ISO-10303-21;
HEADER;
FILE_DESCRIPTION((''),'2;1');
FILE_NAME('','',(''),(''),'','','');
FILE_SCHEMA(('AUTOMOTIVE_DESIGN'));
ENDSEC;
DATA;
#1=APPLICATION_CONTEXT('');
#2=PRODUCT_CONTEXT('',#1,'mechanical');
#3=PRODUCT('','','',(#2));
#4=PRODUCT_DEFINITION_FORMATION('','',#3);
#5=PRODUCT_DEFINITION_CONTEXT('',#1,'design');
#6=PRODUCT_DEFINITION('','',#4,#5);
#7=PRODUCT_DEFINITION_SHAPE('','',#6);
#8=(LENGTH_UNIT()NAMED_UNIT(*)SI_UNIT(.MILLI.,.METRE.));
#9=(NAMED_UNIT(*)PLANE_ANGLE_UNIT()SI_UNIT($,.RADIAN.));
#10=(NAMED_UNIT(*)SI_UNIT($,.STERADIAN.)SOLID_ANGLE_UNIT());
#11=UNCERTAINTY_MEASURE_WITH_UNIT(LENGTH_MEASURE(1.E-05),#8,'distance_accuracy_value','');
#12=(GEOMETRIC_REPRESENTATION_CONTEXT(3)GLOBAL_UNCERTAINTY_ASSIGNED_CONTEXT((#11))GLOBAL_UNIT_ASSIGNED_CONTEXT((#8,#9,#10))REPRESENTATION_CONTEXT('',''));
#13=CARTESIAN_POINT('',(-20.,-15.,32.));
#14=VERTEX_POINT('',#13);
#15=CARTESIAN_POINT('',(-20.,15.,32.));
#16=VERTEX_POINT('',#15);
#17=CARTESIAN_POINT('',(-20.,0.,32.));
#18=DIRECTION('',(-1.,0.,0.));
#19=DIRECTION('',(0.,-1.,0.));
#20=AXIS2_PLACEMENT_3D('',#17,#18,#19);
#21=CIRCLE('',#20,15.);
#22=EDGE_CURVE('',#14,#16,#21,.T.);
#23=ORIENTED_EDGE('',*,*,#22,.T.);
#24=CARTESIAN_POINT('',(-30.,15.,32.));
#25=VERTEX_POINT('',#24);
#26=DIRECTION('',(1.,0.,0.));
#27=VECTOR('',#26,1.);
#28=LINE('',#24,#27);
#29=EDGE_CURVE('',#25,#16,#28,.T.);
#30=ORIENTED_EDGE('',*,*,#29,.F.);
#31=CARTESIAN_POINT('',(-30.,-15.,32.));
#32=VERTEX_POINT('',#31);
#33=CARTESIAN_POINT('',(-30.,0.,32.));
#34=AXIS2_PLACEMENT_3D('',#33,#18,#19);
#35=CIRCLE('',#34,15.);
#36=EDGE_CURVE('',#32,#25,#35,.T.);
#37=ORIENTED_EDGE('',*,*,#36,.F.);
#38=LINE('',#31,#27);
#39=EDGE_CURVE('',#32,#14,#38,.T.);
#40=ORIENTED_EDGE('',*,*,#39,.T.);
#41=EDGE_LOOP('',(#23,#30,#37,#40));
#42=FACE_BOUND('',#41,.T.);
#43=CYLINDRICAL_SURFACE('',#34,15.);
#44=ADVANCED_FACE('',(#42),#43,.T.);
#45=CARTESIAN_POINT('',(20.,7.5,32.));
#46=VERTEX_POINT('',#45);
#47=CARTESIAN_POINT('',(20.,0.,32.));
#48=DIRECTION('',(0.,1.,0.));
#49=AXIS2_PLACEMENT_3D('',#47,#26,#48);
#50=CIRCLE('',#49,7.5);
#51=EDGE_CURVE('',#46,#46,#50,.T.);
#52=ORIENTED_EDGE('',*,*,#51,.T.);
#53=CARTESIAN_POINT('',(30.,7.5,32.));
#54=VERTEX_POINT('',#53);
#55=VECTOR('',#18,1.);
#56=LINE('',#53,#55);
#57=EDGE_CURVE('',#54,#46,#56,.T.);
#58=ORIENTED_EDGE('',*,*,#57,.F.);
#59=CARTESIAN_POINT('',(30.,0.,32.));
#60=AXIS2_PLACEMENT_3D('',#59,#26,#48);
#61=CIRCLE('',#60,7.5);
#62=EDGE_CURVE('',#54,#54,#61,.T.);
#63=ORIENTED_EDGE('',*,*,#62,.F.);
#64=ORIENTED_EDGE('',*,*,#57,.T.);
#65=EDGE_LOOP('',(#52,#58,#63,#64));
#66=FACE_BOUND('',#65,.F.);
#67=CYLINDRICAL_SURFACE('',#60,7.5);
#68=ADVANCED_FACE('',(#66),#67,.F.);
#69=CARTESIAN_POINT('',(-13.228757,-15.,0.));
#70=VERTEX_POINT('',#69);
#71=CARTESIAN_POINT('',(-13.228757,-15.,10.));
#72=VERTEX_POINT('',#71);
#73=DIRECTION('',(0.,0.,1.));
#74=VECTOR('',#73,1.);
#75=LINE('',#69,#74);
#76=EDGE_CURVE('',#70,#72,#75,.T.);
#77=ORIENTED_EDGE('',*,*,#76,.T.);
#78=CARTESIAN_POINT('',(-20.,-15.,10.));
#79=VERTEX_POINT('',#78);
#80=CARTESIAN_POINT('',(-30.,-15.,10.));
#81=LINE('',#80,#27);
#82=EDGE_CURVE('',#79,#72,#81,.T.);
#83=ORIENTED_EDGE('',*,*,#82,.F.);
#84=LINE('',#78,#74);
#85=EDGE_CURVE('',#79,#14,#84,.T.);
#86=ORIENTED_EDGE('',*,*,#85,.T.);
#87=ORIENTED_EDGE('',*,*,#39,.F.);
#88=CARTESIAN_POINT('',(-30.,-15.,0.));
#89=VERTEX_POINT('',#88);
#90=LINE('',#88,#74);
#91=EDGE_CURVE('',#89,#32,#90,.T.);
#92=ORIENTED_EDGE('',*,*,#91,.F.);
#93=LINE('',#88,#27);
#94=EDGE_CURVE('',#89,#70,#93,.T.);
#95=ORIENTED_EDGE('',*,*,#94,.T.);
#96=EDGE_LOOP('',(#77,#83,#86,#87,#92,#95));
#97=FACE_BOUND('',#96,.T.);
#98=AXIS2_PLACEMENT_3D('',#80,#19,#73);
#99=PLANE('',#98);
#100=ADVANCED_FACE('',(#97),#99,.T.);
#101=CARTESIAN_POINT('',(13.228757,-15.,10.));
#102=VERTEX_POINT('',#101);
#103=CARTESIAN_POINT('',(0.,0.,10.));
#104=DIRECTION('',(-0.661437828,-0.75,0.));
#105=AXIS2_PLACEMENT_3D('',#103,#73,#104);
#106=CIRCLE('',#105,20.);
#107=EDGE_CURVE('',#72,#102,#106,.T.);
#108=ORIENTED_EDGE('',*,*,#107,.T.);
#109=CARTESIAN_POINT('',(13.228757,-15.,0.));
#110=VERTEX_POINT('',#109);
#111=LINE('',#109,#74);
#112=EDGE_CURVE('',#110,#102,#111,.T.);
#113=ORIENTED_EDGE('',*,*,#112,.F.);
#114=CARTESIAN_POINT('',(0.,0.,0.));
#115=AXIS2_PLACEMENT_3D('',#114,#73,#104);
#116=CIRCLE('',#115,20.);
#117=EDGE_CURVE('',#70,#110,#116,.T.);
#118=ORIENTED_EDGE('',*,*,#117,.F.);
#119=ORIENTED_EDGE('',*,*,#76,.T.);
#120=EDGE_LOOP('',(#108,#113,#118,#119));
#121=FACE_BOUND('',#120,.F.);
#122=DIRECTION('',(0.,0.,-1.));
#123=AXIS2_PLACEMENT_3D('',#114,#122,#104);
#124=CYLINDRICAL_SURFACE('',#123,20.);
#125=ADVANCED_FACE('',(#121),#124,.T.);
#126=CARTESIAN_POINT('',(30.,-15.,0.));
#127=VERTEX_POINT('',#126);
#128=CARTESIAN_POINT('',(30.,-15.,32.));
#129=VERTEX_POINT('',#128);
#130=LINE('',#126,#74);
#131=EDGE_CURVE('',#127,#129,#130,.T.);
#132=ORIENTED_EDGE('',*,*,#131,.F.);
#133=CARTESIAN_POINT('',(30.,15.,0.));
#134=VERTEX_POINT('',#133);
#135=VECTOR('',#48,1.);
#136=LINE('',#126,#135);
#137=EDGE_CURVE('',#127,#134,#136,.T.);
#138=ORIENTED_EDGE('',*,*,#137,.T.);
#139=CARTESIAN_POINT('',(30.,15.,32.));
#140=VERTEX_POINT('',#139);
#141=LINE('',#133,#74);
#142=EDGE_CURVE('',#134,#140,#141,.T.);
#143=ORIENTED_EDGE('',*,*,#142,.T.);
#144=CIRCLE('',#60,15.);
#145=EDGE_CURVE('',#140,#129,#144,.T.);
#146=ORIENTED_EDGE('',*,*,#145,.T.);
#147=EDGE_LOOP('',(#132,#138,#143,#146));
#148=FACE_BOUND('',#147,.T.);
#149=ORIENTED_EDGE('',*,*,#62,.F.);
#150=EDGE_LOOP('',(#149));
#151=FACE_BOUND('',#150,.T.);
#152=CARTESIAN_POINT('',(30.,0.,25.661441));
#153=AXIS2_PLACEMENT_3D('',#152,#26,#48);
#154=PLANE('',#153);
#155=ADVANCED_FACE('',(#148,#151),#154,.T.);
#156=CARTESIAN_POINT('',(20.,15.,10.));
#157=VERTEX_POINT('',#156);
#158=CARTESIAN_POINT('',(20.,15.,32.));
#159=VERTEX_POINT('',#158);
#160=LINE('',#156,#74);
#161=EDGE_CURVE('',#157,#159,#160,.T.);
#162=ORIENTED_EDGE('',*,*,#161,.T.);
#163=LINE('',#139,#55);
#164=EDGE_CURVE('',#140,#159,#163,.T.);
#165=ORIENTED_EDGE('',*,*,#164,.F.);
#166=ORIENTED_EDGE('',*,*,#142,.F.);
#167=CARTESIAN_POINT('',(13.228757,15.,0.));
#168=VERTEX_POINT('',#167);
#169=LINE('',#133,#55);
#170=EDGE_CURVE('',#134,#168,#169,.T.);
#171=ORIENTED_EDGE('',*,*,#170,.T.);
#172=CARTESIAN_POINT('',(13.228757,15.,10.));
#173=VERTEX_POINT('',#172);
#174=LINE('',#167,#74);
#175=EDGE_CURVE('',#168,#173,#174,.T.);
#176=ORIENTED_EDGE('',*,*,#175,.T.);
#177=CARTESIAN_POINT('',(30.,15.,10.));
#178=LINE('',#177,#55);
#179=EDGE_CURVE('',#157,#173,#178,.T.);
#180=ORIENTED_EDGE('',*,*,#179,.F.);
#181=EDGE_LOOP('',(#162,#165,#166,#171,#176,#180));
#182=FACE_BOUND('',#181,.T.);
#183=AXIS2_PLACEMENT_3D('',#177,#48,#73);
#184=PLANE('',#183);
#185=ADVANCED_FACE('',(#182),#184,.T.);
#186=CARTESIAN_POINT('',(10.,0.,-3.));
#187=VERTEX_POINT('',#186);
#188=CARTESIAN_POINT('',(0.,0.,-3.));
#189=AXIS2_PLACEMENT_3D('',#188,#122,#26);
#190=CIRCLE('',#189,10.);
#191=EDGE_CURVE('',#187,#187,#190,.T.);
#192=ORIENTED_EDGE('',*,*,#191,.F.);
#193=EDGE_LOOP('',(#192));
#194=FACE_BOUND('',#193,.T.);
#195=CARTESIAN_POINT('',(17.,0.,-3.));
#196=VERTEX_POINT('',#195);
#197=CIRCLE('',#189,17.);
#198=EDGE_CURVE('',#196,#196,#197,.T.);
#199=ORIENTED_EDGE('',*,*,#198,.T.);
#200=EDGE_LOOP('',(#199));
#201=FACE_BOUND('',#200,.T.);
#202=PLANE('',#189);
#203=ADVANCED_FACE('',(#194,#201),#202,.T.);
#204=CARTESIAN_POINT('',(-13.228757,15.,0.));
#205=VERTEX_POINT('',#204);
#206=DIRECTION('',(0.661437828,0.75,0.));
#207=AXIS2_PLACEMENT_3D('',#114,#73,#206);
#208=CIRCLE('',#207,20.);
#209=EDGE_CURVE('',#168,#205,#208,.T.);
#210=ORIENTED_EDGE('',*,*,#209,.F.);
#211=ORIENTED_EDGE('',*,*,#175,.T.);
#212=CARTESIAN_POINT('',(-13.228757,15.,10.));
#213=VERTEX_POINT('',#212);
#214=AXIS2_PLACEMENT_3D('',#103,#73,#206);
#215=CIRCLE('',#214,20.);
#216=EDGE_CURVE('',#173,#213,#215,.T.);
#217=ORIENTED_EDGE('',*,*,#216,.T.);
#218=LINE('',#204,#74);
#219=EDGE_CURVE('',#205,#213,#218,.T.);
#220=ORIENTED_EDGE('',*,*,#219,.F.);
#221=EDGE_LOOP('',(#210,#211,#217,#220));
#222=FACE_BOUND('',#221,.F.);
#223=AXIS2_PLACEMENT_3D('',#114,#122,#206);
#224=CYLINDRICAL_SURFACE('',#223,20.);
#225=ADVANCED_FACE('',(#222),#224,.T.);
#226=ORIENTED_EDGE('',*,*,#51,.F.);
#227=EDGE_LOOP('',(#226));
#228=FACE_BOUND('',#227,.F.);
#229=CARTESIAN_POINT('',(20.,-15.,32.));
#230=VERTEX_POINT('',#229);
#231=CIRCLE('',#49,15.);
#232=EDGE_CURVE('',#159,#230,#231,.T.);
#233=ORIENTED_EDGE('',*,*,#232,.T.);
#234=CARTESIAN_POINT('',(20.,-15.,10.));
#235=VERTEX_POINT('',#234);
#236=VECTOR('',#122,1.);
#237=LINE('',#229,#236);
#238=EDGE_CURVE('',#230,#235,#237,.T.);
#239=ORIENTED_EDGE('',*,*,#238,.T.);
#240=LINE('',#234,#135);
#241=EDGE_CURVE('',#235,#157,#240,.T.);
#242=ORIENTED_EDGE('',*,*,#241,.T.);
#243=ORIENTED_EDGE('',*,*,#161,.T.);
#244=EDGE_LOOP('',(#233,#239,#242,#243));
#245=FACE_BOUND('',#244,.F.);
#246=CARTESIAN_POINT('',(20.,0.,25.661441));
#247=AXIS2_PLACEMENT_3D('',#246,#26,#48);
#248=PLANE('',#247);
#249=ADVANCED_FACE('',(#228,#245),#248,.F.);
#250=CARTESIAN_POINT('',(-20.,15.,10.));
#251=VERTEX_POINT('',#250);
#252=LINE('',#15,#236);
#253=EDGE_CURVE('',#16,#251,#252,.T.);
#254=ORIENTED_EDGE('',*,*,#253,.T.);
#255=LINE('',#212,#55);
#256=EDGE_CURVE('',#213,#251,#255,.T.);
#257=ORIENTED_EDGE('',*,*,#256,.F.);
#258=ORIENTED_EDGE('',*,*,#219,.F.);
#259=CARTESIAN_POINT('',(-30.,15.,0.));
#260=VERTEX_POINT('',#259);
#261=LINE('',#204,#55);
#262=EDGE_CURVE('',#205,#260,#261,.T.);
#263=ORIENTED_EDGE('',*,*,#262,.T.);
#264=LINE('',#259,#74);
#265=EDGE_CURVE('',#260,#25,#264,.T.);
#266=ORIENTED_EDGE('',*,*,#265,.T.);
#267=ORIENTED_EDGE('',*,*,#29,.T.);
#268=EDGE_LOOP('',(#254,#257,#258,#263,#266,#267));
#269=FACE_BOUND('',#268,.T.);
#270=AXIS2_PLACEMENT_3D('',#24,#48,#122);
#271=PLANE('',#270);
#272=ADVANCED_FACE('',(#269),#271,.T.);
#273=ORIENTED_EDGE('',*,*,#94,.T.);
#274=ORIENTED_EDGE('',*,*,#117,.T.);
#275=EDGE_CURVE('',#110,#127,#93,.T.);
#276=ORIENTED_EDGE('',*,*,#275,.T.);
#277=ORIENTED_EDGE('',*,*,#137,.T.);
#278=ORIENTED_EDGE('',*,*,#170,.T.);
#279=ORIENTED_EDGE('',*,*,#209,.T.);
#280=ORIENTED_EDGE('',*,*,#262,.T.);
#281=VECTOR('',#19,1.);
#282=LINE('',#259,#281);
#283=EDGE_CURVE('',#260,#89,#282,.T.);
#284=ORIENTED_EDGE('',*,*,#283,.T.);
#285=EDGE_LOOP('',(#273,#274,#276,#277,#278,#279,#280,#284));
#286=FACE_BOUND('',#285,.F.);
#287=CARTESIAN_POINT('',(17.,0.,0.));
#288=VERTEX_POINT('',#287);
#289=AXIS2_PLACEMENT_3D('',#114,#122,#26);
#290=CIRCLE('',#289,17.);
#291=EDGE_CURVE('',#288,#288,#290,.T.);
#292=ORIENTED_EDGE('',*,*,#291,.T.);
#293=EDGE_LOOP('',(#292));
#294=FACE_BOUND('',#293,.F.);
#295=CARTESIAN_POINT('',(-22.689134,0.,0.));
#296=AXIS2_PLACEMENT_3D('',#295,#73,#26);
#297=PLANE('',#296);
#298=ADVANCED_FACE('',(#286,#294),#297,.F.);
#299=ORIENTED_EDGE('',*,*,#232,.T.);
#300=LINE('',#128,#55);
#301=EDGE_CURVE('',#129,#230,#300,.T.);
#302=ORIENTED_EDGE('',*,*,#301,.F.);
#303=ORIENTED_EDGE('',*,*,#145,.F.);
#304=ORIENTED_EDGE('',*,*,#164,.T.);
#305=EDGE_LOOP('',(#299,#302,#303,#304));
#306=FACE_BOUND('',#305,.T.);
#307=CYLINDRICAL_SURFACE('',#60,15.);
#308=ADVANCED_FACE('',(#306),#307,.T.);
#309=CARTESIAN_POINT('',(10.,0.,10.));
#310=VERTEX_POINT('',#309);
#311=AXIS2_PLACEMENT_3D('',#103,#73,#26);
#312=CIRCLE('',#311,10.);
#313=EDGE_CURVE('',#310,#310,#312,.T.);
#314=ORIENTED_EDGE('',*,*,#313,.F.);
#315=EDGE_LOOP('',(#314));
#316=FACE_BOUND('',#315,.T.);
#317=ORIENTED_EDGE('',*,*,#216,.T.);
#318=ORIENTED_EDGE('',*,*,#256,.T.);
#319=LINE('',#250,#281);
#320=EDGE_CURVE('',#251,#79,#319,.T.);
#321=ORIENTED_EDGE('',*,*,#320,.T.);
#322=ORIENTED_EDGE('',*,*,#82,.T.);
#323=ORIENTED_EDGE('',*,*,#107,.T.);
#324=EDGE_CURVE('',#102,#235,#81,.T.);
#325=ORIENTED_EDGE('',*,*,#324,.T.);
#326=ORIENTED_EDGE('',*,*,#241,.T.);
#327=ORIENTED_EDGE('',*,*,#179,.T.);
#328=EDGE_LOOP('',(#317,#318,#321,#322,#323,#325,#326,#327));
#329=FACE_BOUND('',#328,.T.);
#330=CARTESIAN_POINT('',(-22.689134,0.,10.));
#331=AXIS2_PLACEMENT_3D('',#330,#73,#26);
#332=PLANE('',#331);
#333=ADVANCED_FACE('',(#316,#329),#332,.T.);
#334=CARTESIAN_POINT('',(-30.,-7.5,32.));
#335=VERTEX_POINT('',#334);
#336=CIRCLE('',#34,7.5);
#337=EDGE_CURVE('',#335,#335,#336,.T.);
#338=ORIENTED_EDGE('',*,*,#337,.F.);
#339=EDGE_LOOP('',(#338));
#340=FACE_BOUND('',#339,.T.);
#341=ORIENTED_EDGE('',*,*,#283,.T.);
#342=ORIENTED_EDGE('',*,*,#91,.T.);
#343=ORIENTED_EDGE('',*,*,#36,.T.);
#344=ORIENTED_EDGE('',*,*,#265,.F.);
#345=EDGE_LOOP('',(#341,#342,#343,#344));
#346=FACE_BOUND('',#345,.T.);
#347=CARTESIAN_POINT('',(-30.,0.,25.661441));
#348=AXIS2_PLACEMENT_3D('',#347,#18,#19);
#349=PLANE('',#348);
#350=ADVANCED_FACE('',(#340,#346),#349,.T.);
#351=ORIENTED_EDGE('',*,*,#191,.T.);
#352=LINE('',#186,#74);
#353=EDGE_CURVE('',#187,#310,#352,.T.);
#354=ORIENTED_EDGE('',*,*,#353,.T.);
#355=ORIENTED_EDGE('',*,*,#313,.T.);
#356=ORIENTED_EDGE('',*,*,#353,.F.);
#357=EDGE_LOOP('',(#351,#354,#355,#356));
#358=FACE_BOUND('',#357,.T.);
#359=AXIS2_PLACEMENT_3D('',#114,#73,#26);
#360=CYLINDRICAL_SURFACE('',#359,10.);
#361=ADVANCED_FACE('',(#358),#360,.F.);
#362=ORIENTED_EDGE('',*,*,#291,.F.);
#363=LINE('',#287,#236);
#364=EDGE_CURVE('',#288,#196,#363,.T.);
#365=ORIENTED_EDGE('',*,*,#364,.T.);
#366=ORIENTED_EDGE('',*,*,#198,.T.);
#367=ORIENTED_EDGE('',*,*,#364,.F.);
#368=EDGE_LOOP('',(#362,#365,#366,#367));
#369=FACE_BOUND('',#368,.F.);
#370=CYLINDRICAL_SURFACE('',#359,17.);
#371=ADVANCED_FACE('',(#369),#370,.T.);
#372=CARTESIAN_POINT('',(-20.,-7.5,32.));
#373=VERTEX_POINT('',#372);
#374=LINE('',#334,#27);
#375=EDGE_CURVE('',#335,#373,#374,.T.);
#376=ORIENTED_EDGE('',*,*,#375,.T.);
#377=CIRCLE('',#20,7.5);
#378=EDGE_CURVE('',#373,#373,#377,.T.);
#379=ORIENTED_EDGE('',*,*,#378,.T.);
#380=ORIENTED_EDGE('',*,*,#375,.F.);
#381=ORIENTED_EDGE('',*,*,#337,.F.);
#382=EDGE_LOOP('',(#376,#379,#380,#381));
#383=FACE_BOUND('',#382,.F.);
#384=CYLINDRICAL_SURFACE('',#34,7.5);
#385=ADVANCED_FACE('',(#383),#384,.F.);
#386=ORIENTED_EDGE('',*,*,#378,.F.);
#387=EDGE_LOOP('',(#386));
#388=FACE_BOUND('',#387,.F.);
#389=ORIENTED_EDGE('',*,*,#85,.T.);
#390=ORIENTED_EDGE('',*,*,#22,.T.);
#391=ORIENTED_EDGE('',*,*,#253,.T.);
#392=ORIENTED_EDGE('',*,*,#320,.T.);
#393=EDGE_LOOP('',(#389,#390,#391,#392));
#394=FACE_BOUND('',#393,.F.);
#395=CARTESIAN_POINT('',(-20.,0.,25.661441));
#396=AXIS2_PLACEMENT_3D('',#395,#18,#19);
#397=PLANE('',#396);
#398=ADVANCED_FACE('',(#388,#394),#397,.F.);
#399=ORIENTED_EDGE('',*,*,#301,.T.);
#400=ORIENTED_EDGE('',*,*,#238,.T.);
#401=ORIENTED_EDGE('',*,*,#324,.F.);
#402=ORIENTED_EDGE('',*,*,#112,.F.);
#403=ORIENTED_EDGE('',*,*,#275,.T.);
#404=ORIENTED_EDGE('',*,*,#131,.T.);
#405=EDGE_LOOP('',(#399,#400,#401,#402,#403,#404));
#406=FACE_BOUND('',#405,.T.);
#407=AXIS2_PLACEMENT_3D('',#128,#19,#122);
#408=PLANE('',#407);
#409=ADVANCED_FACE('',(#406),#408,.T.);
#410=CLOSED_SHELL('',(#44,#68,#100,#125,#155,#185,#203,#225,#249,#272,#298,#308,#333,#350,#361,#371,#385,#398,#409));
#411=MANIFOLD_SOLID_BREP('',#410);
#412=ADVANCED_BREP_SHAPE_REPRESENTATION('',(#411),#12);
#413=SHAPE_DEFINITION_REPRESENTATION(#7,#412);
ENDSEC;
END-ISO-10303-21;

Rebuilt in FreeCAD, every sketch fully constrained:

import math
import FreeCAD as App
import Part
import Sketcher

V = App.Vector
Q = App.Units.Quantity

doc = App.newDocument("Part")
body = doc.addObject("PartDesign::Body", "Body")

# Sketch on XY plane
sketch1 = doc.addObject("Sketcher::SketchObject", "Sketch")
body.addObject(sketch1)
sketch1.AttachmentSupport = (doc.XY_Plane, [""])
sketch1.MapMode = "FlatFace"
sketch1.addGeometry([
    Part.LineSegment(V(-13.228757, 15, 0), V(-30, 15, 0)),  # 0
    Part.LineSegment(V(-30, 15, 0), V(-30, -15, 0)),  # 1
    Part.LineSegment(V(-30, -15, 0), V(-13.228757, -15, 0)),  # 2
    Part.ArcOfCircle(Part.Circle(V(0, 0, 0), V(0, 0, 1), 20), math.radians(-131.409622), math.radians(-48.590378)),  # 3
    Part.LineSegment(V(13.228757, -15, 0), V(30, -15, 0)),  # 4
    Part.LineSegment(V(30, -15, 0), V(30, 15, 0)),  # 5
    Part.LineSegment(V(30, 15, 0), V(13.228757, 15, 0)),  # 6
    Part.ArcOfCircle(Part.Circle(V(0, 0, 0), V(0, 0, 1), 20), math.radians(48.590378), math.radians(131.409622)),  # 7
    Part.Circle(V(0, 0, 0), V(0, 0, 1), 10),  # 8
], False)
sketch1.addConstraint([
    Sketcher.Constraint("Coincident", 0, 2, 1, 1),
    Sketcher.Constraint("Coincident", 1, 2, 2, 1),
    Sketcher.Constraint("Coincident", 2, 2, 3, 1),
    Sketcher.Constraint("Coincident", 3, 2, 4, 1),
    Sketcher.Constraint("Coincident", 4, 2, 5, 1),
    Sketcher.Constraint("Coincident", 5, 2, 6, 1),
    Sketcher.Constraint("Coincident", 6, 2, 7, 1),
    Sketcher.Constraint("Coincident", 7, 2, 0, 1),
    Sketcher.Constraint("Horizontal", 0),
    Sketcher.Constraint("Vertical", 1),
    Sketcher.Constraint("Horizontal", 2),
    Sketcher.Constraint("Horizontal", 4),
    Sketcher.Constraint("Vertical", 5),
    Sketcher.Constraint("Horizontal", 6),
    Sketcher.Constraint("Coincident", 3, 3, -1, 1),
    Sketcher.Constraint("Coincident", 7, 3, -1, 1),
    Sketcher.Constraint("Coincident", 8, 3, -1, 1),
    Sketcher.Constraint("Equal", 3, 7),
    Sketcher.Constraint("Symmetric", 0, 2, 4, 2, -1, 1),
    Sketcher.Constraint("Horizontal", 2, 2, 3, 2),
    Sketcher.Constraint("Horizontal", 0, 2, 5, 2),
    Sketcher.Constraint("Diameter", 8, Q("20 mm")),
    Sketcher.Constraint("Radius", 3, Q("20 mm")),
    Sketcher.Constraint("DistanceY", 1, 2, 1, 1, Q("30 mm")),
    Sketcher.Constraint("DistanceX", 0, 2, -1, 1, Q("30 mm")),
])
pad1 = doc.addObject("PartDesign::Pad", "Pad")
body.addObject(pad1)
pad1.Profile = sketch1
pad1.Length = 10

# Sketch on XY plane
sketch2 = doc.addObject("Sketcher::SketchObject", "Sketch001")
body.addObject(sketch2)
sketch2.AttachmentSupport = (doc.XY_Plane, [""])
sketch2.MapMode = "FlatFace"
sketch2.addGeometry([
    Part.Circle(V(0, 0, 0), V(0, 0, 1), 17),
    Part.Circle(V(0, 0, 0), V(0, 0, 1), 10),
], False)
sketch2.addConstraint([
    Sketcher.Constraint("Coincident", 0, 3, -1, 1),
    Sketcher.Constraint("Coincident", 1, 3, -1, 1),
    Sketcher.Constraint("Diameter", 0, Q("34 mm")),
    Sketcher.Constraint("Diameter", 1, Q("20 mm")),
])
pad2 = doc.addObject("PartDesign::Pad", "Pad001")
body.addObject(pad2)
pad2.Profile = sketch2
pad2.Length = 3
pad2.Reversed = True

# Sketch on YZ plane
sketch3 = doc.addObject("Sketcher::SketchObject", "Sketch002")
body.addObject(sketch3)
sketch3.AttachmentSupport = (doc.YZ_Plane, [""])
sketch3.MapMode = "FlatFace"
sketch3.AttachmentOffset = App.Placement(V(0, 0, 30), App.Rotation())
sketch3.addGeometry([
    Part.LineSegment(V(-15, 32, 0), V(-15, 10, 0)),  # 0
    Part.LineSegment(V(-15, 10, 0), V(15, 10, 0)),  # 1
    Part.LineSegment(V(15, 10, 0), V(15, 32, 0)),  # 2
    Part.ArcOfCircle(Part.Circle(V(0, 32, 0), V(0, 0, 1), 15), math.radians(0), math.radians(180)),  # 3
    Part.Circle(V(0, 32, 0), V(0, 0, 1), 7.5),  # 4
], False)
sketch3.addConstraint([
    Sketcher.Constraint("Coincident", 0, 2, 1, 1),
    Sketcher.Constraint("Coincident", 1, 2, 2, 1),
    Sketcher.Constraint("Tangent", 2, 2, 3, 1),
    Sketcher.Constraint("Tangent", 3, 2, 0, 1),
    Sketcher.Constraint("Vertical", 0),
    Sketcher.Constraint("Horizontal", 1),
    Sketcher.Constraint("Vertical", 2),
    Sketcher.Constraint("Coincident", 4, 3, 3, 3),
    Sketcher.Constraint("PointOnObject", 3, 3, -2),
    Sketcher.Constraint("Diameter", 4, Q("15 mm")),
    Sketcher.Constraint("Radius", 3, Q("15 mm")),
    Sketcher.Constraint("DistanceY", 0, 2, 0, 1, Q("22 mm")),
    Sketcher.Constraint("DistanceY", -1, 1, 3, 3, Q("32 mm")),
])
pad3 = doc.addObject("PartDesign::Pad", "Pad002")
body.addObject(pad3)
pad3.Profile = sketch3
pad3.Length = 10
pad3.Reversed = True

# Sketch on YZ plane
sketch4 = doc.addObject("Sketcher::SketchObject", "Sketch003")
body.addObject(sketch4)
sketch4.AttachmentSupport = (doc.YZ_Plane, [""])
sketch4.MapMode = "FlatFace"
sketch4.AttachmentOffset = App.Placement(V(0, 0, -30), App.Rotation())
sketch4.addGeometry([
    Part.LineSegment(V(15, 10, 0), V(-15, 10, 0)),  # 0
    Part.LineSegment(V(-15, 10, 0), V(-15, 32, 0)),  # 1
    Part.ArcOfCircle(Part.Circle(V(0, 32, 0), V(0, 0, 1), 15), math.radians(0), math.radians(180)),  # 2
    Part.LineSegment(V(15, 32, 0), V(15, 10, 0)),  # 3
    Part.Circle(V(0, 32, 0), V(0, 0, 1), 7.5),  # 4
], False)
sketch4.addConstraint([
    Sketcher.Constraint("Coincident", 0, 2, 1, 1),
    Sketcher.Constraint("Tangent", 1, 2, 2, 2),
    Sketcher.Constraint("Tangent", 2, 1, 3, 1),
    Sketcher.Constraint("Coincident", 3, 2, 0, 1),
    Sketcher.Constraint("Horizontal", 0),
    Sketcher.Constraint("Vertical", 1),
    Sketcher.Constraint("Vertical", 3),
    Sketcher.Constraint("Coincident", 4, 3, 2, 3),
    Sketcher.Constraint("PointOnObject", 2, 3, -2),
    Sketcher.Constraint("Diameter", 4, Q("15 mm")),
    Sketcher.Constraint("Radius", 2, Q("15 mm")),
    Sketcher.Constraint("DistanceY", 1, 1, 1, 2, Q("22 mm")),
    Sketcher.Constraint("DistanceY", -1, 1, 2, 3, Q("32 mm")),
])
pad4 = doc.addObject("PartDesign::Pad", "Pad003")
body.addObject(pad4)
pad4.Profile = sketch4
pad4.Length = 10

doc.recompute()
